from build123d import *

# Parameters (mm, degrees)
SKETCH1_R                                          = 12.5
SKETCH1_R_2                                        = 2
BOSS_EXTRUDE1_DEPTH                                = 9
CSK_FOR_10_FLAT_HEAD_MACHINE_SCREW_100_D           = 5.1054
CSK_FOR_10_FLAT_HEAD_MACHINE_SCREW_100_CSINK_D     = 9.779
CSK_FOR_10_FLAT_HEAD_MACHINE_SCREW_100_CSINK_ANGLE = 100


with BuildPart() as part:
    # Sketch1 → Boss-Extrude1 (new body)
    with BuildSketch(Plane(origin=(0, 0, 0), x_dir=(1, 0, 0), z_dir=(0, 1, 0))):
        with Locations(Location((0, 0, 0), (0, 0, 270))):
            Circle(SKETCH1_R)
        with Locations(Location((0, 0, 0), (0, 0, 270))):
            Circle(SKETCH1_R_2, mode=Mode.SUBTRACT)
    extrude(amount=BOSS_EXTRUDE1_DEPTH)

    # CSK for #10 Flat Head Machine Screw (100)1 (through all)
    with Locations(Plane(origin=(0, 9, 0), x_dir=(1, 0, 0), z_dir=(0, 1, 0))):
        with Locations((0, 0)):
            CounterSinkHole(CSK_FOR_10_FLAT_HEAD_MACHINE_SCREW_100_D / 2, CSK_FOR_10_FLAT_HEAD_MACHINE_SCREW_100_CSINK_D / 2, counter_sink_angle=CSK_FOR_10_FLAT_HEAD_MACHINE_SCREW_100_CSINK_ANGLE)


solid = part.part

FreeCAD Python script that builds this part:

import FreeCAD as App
import Part
import Sketcher

V = App.Vector
Q = App.Units.Quantity

doc = App.newDocument("Part")
body = doc.addObject("PartDesign::Body", "Body")

sketch1 = body.newObject("Sketcher::SketchObject", "Sketch")
sketch1.AttachmentSupport = (doc.getObject("XZ_Plane"), [""])
sketch1.MapMode = "FlatFace"
sketch1.addGeometry([
    Part.Circle(V(0, 0, 0), V(0, 0, 1), 12.5),
    Part.Circle(V(0, 0, 0), V(0, 0, 1), 2),
], False)
sketch1.addConstraint([
    Sketcher.Constraint("Coincident", 0, 3, -1, 1),
    Sketcher.Constraint("Coincident", 1, 3, -1, 1),
    Sketcher.Constraint("Diameter", 0, Q("25 mm")),
    Sketcher.Constraint("Diameter", 1, Q("4 mm")),
])
pad1 = body.newObject("PartDesign::Pad", "Pad")
pad1.Profile = sketch1
pad1.Length = 9
pad1.Reversed = True

sketch2 = body.newObject("Sketcher::SketchObject", "Sketch001")
sketch2.AttachmentSupport = (doc.getObject("XZ_Plane"), [""])
sketch2.MapMode = "FlatFace"
sketch2.AttachmentOffset = App.Placement(V(0, 0, -9), App.Rotation())
sketch2.addGeometry(Part.Circle(V(0, 0, 0), V(0, 0, 1), 2.6), False)
sketch2.addConstraint([
    Sketcher.Constraint("Coincident", 0, 3, -1, 1),
    Sketcher.Constraint("Diameter", 0, Q("5.1054 mm")),
])
doc.recompute()
hole = body.newObject("PartDesign::Hole", "Hole")
hole.Profile = sketch2
hole.ThreadType = "None"
hole.Diameter = 5.1054
hole.DepthType = "ThroughAll"
hole.HoleCutType = "Countersink"
hole.HoleCutDiameter = 9.779
hole.HoleCutCountersinkAngle = 100
hole.Reversed = True

doc.recompute()
